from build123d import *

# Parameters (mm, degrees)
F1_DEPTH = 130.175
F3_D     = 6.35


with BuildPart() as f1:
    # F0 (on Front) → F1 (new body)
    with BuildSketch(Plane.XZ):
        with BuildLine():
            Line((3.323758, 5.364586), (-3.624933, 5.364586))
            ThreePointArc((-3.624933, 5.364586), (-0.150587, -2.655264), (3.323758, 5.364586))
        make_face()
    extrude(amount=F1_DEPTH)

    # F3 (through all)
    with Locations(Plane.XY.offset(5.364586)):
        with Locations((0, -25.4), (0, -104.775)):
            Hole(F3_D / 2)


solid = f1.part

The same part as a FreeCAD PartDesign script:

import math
import FreeCAD as App
import Part
import Sketcher
from FreeCAD import Vector
Q = App.Units.Quantity

doc = App.newDocument("Part")
body = doc.addObject("PartDesign::Body", "Body")

# Sketch on XZ plane
sketch1 = body.newObject("Sketcher::SketchObject", "Sketch")
sketch1.AttachmentSupport = (doc.getObject("XZ_Plane"), [""])
sketch1.MapMode = "FlatFace"
sketch1.addGeometry([
    Part.LineSegment(Vector(3.3, 5.4, 0), Vector(-3.6, 5.4, 0)),
    Part.ArcOfCircle(Part.Circle(Vector(-0.2, 2.1, 0), Vector(0, 0, 1), 4.8), math.radians(137), math.radians(403)),
], False)
sketch1.addConstraint([
    Sketcher.Constraint("Coincident", 0, 1, 1, 2),
    Sketcher.Constraint("Coincident", 1, 1, 0, 2),
    Sketcher.Constraint("Horizontal", 0),
    Sketcher.Constraint("Radius", 1, Q("0.1875 in")),
    Sketcher.Constraint("DistanceX", 0, 2, 0, 1, 6.948691),
    Sketcher.Constraint("DistanceX", -1, 1, 0, 1, 3.323758),
    Sketcher.Constraint("DistanceY", -1, 1, 1, 3, 2.107236),
])
pad1 = body.newObject("PartDesign::Pad", "Pad")
pad1.Profile = sketch1
pad1.Length = Q("5.125 in")

# Sketch on XY plane
sketch2 = body.newObject("Sketcher::SketchObject", "Sketch001")
sketch2.AttachmentSupport = (doc.getObject("XY_Plane"), [""])
sketch2.MapMode = "FlatFace"
sketch2.AttachmentOffset = App.Placement(Vector(0, 0, 5.364586), App.Rotation())
sketch2.addGeometry([
    Part.Circle(Vector(0, -25.4, 0), Vector(0, 0, 1), 3.2),
    Part.Circle(Vector(0, -104.8, 0), Vector(0, 0, 1), 3.2),
], False)
sketch2.addConstraint([
    Sketcher.Constraint("Equal", 0, 1),
    Sketcher.Constraint("PointOnObject", 0, 3, -2),
    Sketcher.Constraint("PointOnObject", 1, 3, -2),
    Sketcher.Constraint("Diameter", 0, Q("0.25 in")),
    Sketcher.Constraint("DistanceY", 0, 3, -1, 1, Q("1 in")),
    Sketcher.Constraint("DistanceY", 1, 3, -1, 1, Q("4.125 in")),
])
doc.recompute()
hole = body.newObject("PartDesign::Hole", "Hole")
hole.Profile = sketch2
hole.ThreadType = "None"
hole.Diameter = Q("0.25 in")
hole.DepthType = "ThroughAll"

doc.recompute()
